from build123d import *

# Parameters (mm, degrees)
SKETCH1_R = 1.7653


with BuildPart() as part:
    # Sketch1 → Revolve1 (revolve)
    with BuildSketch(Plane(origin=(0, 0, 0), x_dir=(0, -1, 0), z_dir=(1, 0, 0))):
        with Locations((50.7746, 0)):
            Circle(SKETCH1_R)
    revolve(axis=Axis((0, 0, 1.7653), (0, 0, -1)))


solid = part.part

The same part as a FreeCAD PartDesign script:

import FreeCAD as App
import Part
import Sketcher
from FreeCAD import Vector
Q = App.Units.Quantity

doc = App.newDocument("Part")
body = doc.addObject("PartDesign::Body", "Body")

sketch1 = body.newObject("Sketcher::SketchObject", "Sketch")
sketch1.AttachmentSupport = (doc.getObject("YZ_Plane"), [""])
sketch1.MapMode = "FlatFace"
sketch1.addGeometry(Part.Circle(Vector(-50.8, 0, 0), Vector(0, 0, 1), 1.8), False)
sketch1.addConstraint([
    Sketcher.Constraint("PointOnObject", 0, 3, -1),
    Sketcher.Constraint("Diameter", 0, Q("0.139 in")),
    Sketcher.Constraint("DistanceX", 0, 3, -1, 1, Q("1.999 in")),
])
revolution = body.newObject("PartDesign::Revolution", "Revolution")
revolution.Profile = sketch1
revolution.ReferenceAxis = (sketch1, ["V_Axis"])
revolution.Angle = 360

doc.recompute()
